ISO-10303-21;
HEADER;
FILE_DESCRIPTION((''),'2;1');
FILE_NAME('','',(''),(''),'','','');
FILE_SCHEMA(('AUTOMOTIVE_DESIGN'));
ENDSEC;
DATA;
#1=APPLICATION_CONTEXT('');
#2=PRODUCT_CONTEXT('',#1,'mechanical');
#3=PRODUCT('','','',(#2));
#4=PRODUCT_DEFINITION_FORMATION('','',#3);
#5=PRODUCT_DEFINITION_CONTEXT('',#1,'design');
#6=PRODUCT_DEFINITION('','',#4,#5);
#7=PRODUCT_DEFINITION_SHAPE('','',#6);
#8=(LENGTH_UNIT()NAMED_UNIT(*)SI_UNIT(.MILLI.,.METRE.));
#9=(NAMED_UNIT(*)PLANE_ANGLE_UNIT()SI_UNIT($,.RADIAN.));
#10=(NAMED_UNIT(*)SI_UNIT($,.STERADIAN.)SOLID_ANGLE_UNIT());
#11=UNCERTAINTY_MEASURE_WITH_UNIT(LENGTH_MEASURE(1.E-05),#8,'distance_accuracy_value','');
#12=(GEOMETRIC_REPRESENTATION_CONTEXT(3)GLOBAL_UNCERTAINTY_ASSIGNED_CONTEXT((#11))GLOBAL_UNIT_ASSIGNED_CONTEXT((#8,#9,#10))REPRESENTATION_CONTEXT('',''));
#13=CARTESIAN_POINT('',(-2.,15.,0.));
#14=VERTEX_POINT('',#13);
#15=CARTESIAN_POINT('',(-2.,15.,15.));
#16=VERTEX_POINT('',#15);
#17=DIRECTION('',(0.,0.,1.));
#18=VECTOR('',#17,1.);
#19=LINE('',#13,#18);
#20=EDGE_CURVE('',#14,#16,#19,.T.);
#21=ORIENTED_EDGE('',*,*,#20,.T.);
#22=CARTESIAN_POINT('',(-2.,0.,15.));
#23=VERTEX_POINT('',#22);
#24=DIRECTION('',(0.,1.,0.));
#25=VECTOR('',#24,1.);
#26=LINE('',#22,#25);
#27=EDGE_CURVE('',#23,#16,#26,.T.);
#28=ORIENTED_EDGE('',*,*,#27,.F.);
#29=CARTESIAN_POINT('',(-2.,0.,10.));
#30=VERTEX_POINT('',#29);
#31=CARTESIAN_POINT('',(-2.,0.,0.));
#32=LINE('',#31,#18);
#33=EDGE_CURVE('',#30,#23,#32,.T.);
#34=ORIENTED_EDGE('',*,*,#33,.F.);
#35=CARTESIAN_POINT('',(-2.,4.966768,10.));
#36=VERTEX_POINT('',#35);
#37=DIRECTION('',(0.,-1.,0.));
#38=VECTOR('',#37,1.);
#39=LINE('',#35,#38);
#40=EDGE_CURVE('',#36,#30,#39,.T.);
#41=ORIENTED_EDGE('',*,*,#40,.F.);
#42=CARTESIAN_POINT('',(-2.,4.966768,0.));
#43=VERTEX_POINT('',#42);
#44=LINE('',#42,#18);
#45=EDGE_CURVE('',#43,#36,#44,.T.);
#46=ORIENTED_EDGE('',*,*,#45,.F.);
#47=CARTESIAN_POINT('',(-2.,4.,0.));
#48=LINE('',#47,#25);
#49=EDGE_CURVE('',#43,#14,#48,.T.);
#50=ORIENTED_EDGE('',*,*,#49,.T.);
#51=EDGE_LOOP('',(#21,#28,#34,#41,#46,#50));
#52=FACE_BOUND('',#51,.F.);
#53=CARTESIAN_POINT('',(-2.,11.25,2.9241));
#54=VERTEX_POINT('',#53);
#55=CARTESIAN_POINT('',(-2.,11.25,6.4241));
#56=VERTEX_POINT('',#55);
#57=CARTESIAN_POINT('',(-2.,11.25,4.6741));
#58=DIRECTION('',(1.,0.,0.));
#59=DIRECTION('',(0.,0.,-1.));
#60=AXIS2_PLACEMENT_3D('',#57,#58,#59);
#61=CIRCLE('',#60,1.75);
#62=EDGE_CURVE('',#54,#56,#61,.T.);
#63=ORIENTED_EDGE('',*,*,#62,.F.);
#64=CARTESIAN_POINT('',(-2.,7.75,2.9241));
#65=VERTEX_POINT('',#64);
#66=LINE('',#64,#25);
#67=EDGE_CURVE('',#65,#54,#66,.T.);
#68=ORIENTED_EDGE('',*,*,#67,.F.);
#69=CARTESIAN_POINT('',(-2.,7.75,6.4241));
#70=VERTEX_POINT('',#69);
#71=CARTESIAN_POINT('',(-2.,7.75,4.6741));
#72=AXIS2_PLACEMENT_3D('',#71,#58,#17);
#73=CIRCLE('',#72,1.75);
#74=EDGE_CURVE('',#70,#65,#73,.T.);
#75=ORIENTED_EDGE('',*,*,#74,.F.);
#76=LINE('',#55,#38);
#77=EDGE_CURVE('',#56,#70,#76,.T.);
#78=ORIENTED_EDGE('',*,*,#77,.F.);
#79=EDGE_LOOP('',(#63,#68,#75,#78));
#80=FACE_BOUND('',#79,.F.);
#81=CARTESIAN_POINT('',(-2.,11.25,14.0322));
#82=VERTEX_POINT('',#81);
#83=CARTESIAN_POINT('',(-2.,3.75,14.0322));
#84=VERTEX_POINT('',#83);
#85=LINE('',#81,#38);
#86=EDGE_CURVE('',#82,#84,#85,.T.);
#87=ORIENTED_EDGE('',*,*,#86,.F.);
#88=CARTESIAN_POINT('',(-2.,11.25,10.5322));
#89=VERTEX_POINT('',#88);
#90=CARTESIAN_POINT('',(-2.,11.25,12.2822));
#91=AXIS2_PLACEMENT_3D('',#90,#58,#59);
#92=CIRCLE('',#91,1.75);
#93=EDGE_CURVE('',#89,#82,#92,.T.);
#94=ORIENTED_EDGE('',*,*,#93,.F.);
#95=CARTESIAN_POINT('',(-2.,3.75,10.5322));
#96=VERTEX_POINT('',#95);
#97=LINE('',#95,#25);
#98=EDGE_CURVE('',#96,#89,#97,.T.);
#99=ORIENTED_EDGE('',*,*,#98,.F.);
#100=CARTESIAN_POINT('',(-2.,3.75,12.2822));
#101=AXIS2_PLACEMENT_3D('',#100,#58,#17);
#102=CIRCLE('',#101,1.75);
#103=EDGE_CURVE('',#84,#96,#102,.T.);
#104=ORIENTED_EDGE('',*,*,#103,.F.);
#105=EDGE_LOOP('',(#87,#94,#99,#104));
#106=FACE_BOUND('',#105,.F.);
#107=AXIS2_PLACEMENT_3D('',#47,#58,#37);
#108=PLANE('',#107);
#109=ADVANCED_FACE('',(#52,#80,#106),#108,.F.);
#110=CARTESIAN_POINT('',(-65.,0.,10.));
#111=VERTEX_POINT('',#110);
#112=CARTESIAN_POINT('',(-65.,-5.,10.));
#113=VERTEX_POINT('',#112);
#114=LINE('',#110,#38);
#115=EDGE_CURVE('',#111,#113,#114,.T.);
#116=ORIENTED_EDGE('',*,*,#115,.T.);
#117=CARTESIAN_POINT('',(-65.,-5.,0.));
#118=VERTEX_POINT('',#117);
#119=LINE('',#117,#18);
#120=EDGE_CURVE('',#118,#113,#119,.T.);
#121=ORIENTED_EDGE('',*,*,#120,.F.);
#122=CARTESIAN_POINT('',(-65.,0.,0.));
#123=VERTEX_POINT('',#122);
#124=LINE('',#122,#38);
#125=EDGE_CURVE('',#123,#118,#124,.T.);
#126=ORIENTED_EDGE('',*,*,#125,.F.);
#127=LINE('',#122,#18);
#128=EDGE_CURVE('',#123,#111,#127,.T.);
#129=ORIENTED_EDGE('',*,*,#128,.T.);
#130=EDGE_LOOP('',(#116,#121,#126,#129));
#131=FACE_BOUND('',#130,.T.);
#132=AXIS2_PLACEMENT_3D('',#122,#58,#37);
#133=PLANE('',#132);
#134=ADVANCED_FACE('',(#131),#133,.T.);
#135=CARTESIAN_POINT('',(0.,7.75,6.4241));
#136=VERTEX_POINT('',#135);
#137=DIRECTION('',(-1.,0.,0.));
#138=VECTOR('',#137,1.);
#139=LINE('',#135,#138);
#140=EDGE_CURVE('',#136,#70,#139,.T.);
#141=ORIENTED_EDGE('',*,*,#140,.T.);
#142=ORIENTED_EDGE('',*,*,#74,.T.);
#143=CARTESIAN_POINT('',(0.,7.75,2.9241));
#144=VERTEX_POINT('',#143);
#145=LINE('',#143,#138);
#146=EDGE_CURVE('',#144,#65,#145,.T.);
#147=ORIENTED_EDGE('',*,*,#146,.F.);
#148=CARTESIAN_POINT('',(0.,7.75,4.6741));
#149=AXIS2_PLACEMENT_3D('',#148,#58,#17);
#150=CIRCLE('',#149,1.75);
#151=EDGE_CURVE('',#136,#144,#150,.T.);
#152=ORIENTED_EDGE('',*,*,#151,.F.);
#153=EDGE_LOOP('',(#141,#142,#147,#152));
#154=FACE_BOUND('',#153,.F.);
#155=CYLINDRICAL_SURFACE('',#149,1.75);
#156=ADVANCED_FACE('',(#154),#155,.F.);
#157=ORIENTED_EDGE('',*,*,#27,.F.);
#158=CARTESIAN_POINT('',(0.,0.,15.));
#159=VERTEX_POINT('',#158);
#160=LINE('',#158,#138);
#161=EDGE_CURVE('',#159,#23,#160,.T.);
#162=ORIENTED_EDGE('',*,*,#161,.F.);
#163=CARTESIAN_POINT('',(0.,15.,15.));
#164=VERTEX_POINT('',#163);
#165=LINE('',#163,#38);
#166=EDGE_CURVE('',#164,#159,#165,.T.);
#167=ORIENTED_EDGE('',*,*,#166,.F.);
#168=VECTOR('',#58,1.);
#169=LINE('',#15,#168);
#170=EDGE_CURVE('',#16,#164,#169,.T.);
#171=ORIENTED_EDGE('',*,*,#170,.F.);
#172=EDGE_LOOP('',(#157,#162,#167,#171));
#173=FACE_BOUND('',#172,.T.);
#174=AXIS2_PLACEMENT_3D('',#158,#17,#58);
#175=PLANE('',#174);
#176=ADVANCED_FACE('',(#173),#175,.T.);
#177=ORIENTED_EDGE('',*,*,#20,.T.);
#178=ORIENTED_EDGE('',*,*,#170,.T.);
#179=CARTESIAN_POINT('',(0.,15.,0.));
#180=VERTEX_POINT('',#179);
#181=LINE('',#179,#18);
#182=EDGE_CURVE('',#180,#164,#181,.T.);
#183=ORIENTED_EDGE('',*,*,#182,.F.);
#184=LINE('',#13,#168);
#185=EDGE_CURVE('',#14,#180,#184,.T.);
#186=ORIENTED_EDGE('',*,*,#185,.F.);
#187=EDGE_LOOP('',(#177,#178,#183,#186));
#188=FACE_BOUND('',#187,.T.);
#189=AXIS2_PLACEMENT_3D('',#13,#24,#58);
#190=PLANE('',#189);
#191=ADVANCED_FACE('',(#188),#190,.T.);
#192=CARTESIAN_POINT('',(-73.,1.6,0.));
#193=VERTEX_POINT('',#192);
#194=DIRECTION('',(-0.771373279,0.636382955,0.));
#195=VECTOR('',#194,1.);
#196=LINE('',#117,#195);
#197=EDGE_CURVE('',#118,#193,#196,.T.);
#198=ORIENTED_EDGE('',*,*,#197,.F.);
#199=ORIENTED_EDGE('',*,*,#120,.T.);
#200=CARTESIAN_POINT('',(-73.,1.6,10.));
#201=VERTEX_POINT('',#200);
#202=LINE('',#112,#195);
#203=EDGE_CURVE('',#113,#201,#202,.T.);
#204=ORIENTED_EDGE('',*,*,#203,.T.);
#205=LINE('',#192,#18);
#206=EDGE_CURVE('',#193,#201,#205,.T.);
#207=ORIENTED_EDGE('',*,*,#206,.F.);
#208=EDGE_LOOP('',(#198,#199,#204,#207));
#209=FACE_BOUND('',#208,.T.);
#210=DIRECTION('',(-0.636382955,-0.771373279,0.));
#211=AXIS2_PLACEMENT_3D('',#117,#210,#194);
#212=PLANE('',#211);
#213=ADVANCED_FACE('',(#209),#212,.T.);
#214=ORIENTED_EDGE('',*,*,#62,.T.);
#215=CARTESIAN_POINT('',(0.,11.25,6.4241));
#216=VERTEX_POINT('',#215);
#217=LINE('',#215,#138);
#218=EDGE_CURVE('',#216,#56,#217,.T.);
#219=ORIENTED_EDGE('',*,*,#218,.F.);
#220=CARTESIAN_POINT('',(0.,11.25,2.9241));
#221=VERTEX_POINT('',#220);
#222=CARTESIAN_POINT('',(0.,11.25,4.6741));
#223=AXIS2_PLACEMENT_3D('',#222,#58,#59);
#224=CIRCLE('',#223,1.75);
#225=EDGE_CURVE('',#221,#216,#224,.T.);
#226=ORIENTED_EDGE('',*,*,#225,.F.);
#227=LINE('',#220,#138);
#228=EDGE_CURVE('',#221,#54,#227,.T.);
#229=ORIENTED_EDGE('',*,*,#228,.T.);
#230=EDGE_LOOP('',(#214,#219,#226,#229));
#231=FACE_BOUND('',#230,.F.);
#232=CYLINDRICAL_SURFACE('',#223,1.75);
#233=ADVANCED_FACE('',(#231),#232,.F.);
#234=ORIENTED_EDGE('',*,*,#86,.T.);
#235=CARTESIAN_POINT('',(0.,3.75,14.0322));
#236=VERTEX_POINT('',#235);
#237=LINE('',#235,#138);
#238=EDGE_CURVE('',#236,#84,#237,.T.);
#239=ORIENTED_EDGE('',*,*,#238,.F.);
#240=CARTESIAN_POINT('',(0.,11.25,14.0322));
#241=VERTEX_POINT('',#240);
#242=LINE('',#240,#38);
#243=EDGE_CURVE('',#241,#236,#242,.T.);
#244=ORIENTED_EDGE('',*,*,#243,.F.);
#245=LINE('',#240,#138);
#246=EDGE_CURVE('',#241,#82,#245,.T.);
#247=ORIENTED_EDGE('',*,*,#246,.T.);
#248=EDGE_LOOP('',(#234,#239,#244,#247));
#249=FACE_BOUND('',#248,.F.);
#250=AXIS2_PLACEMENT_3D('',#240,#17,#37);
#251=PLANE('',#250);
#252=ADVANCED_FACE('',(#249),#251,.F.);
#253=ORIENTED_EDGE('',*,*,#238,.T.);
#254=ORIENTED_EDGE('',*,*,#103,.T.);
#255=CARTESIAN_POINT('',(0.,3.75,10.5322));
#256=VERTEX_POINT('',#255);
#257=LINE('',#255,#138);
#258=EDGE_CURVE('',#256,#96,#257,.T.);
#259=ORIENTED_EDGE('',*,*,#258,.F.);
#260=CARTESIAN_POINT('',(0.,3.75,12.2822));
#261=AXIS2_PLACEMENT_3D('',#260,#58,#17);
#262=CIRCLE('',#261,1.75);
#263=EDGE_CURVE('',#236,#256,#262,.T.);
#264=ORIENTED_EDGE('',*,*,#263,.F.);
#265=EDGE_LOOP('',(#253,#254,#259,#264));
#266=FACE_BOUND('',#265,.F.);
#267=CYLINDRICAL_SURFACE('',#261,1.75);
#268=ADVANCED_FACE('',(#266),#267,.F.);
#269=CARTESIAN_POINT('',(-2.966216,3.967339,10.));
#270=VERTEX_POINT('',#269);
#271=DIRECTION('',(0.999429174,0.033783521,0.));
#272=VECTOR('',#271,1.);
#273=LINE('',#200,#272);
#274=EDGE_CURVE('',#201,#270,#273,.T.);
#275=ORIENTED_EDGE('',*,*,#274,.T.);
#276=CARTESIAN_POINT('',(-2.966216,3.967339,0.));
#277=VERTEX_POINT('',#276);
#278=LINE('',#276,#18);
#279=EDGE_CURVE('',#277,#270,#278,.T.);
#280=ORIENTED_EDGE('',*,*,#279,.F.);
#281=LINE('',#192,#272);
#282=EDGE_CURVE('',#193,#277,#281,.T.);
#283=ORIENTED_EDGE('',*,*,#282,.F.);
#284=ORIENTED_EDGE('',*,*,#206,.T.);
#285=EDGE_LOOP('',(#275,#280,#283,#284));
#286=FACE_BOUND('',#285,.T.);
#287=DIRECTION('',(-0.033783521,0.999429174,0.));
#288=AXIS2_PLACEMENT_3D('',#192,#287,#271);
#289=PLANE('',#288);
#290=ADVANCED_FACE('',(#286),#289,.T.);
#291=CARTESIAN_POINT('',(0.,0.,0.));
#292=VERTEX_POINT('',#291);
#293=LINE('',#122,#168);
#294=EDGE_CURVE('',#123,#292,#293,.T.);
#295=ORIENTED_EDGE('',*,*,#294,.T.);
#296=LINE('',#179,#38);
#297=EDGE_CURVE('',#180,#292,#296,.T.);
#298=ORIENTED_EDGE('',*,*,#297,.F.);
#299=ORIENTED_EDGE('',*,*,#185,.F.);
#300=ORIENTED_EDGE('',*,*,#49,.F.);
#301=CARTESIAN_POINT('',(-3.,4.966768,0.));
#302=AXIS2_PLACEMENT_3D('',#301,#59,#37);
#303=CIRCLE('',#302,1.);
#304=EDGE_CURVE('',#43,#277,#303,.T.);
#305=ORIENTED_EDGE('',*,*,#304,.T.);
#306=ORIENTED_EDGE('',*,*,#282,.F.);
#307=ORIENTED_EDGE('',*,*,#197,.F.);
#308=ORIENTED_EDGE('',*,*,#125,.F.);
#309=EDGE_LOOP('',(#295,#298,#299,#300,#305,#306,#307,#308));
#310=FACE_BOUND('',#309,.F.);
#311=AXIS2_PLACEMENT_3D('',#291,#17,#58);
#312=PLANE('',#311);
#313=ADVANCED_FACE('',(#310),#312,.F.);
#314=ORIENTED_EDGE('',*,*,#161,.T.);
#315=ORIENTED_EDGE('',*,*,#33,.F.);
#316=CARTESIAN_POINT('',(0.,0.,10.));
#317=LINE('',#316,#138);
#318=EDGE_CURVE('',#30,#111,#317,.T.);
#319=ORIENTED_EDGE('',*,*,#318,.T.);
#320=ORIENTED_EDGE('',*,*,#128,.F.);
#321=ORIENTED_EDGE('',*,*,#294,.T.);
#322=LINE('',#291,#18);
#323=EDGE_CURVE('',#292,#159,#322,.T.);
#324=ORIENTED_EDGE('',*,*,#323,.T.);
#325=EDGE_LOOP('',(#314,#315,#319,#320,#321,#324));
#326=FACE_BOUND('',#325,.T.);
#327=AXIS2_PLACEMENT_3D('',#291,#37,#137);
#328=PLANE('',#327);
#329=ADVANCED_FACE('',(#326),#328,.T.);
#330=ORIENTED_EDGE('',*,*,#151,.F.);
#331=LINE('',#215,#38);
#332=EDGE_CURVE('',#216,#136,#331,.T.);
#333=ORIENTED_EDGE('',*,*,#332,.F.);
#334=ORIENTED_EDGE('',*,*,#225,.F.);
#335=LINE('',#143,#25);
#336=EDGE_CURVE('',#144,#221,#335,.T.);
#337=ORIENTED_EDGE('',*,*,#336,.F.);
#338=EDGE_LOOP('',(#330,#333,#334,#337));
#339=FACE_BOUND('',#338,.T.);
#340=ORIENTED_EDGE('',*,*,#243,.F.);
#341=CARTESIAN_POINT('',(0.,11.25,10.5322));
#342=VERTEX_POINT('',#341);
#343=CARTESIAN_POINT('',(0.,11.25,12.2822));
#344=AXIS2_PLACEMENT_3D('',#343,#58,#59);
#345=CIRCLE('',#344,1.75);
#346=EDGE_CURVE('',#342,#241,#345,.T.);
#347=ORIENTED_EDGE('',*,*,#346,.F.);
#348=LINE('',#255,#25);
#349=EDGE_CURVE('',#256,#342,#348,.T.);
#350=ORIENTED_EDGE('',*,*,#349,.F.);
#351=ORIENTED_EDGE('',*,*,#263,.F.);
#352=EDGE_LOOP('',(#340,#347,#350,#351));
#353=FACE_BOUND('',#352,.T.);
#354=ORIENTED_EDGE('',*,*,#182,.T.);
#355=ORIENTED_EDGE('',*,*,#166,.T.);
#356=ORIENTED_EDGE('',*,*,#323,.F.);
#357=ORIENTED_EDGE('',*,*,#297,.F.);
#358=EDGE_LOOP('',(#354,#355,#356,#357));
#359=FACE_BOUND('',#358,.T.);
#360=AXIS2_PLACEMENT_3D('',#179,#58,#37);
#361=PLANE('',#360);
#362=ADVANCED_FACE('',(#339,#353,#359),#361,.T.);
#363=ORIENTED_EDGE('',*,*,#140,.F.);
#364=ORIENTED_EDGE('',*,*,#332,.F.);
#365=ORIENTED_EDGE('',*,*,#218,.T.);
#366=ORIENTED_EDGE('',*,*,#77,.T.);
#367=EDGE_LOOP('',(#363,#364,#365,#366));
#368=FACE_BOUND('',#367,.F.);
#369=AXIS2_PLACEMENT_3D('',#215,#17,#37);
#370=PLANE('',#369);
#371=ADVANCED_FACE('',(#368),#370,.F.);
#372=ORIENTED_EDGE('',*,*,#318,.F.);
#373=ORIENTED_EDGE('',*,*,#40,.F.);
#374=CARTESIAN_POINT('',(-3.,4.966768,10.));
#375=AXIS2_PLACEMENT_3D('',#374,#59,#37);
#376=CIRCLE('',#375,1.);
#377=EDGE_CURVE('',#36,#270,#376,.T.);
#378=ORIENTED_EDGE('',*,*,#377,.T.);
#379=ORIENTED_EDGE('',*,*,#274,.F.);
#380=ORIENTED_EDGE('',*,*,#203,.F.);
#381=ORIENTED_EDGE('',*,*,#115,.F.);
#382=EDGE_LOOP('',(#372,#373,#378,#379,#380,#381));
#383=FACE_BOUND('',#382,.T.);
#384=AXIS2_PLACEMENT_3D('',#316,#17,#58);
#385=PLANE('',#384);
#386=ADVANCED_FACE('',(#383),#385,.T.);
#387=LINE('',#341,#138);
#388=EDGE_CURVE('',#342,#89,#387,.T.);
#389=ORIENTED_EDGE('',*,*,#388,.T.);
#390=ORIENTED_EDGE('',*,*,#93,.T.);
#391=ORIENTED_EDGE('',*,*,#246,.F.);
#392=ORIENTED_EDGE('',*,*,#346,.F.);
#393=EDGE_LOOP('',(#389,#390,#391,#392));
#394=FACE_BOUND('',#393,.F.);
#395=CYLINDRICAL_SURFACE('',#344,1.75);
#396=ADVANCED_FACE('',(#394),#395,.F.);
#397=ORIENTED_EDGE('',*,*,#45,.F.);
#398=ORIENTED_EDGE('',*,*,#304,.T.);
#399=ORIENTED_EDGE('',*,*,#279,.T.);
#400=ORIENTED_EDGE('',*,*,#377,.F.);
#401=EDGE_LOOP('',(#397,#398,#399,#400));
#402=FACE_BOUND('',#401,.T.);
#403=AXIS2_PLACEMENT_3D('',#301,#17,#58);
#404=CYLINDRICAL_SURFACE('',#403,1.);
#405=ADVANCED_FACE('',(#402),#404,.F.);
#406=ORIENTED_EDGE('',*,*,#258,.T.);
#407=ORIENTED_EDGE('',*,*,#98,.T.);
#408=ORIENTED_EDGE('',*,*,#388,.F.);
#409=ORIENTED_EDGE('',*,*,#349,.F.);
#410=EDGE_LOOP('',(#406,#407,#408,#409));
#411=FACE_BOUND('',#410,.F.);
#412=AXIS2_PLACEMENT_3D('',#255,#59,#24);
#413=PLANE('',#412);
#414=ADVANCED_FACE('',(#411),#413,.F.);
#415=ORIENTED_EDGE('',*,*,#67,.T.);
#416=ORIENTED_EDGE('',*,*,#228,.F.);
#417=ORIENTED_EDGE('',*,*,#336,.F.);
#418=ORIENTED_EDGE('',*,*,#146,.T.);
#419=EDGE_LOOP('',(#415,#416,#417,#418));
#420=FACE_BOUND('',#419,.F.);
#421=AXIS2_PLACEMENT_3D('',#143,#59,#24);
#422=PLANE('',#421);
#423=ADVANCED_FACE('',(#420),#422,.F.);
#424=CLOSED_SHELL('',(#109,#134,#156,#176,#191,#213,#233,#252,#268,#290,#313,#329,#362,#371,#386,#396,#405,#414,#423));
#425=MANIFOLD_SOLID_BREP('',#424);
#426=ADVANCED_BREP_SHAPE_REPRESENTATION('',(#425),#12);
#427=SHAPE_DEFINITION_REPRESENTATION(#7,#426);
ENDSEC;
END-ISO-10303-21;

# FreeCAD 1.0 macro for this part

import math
import FreeCAD as App
import Part
import Sketcher

V = App.Vector
Q = App.Units.Quantity


def edges_at(feature, points):
    """Names of the edges that pass closest to the given points."""
    edges = feature.Shape.Edges
    near = lambda p: min(range(len(edges)), key=lambda i: edges[i].distToShape(Part.Vertex(*p))[0])
    return sorted({f"Edge{near(p) + 1}" for p in points})

doc = App.newDocument("Part")
params = doc.addObject("Spreadsheet::Sheet", "Params")
for row, (alias, value) in enumerate([
    ("sketch1_width", "2 mm"),
    ("sketch1_height", "15 mm"),
    ("pad1_length", "15 mm"),
    ("sketch2_height", "4 mm"),
    ("sketch2_height2", "5 mm"),
    ("pad2_length", "10 mm"),
    ("sketch3_radius", "1.75 mm"),
    ("sketch3_width", "3.5 mm"),
    ("sketch3_width2", "7.5 mm"),
    ("pocket1_length", "2 mm"),
    ("fillet_radius", "1 mm"),
], start=1):
    params.set(f"A{row}", alias)
    params.set(f"B{row}", "=" + value)
    params.setAlias(f"B{row}", alias)

body = doc.addObject("PartDesign::Body", "Body")

sketch1 = body.newObject("Sketcher::SketchObject", "Sketch")
sketch1.AttachmentSupport = (doc.getObject("XY_Plane"), [""])
sketch1.MapMode = "FlatFace"
sketch1.addGeometry(Part.LineSegment(V(-2, 0, 0), V(0, 0, 0)), False)
sketch1.addGeometry(Part.LineSegment(V(0, 0, 0), V(0, 15, 0)), False)
sketch1.addGeometry(Part.LineSegment(V(0, 15, 0), V(-2, 15, 0)), False)
sketch1.addGeometry(Part.LineSegment(V(-2, 15, 0), V(-2, 0, 0)), False)
sketch1.addConstraint(Sketcher.Constraint("Coincident", 0, 2, 1, 1))
sketch1.addConstraint(Sketcher.Constraint("Coincident", 1, 2, 2, 1))
sketch1.addConstraint(Sketcher.Constraint("Coincident", 2, 2, 3, 1))
sketch1.addConstraint(Sketcher.Constraint("Coincident", 3, 2, 0, 1))
sketch1.addConstraint(Sketcher.Constraint("Horizontal", 0))
sketch1.addConstraint(Sketcher.Constraint("Vertical", 1))
sketch1.addConstraint(Sketcher.Constraint("Horizontal", 2))
sketch1.addConstraint(Sketcher.Constraint("Vertical", 3))
sketch1.addConstraint(Sketcher.Constraint("Coincident", 0, 2, -1, 1))
sketch1.addConstraint(Sketcher.Constraint("DistanceX", 0, 1, 0, 2, Q("2 mm")))
sketch1.addConstraint(Sketcher.Constraint("DistanceY", 1, 1, 1, 2, Q("15 mm")))
sketch1.setExpression("Constraints[9]", "Params.sketch1_width")
sketch1.setExpression("Constraints[10]", "Params.sketch1_height")
pad1 = body.newObject("PartDesign::Pad", "Pad")
pad1.Profile = sketch1
pad1.setExpression("Length", "Params.pad1_length")

sketch2 = body.newObject("Sketcher::SketchObject", "Sketch001")
sketch2.AttachmentSupport = (doc.getObject("XY_Plane"), [""])
sketch2.MapMode = "FlatFace"
sketch2.addGeometry(Part.LineSegment(V(-65, 0, 0), V(-2, 0, 0)), False)
sketch2.addGeometry(Part.LineSegment(V(-2, 0, 0), V(-2, 4, 0)), False)
sketch2.addGeometry(Part.LineSegment(V(-2, 4, 0), V(-73, 1.6, 0)), False)
sketch2.addGeometry(Part.LineSegment(V(-73, 1.6, 0), V(-65, -5, 0)), False)
sketch2.addGeometry(Part.LineSegment(V(-65, -5, 0), V(-65, 0, 0)), False)
sketch2.addConstraint(Sketcher.Constraint("Coincident", 0, 2, 1, 1))
sketch2.addConstraint(Sketcher.Constraint("Coincident", 1, 2, 2, 1))
sketch2.addConstraint(Sketcher.Constraint("Coincident", 2, 2, 3, 1))
sketch2.addConstraint(Sketcher.Constraint("Coincident", 3, 2, 4, 1))
sketch2.addConstraint(Sketcher.Constraint("Coincident", 4, 2, 0, 1))
sketch2.addConstraint(Sketcher.Constraint("Horizontal", 0))
sketch2.addConstraint(Sketcher.Constraint("Vertical", 1))
sketch2.addConstraint(Sketcher.Constraint("Vertical", 4))
sketch2.addConstraint(Sketcher.Constraint("PointOnObject", 0, 2, -1))
sketch2.addConstraint(Sketcher.Constraint("DistanceY", 1, 1, 1, 2, Q("4 mm")))
sketch2.addConstraint(Sketcher.Constraint("DistanceY", 4, 1, 4, 2, Q("5 mm")))
sketch2.addConstraint(Sketcher.Constraint("DistanceX", 0, 2, -1, 1, Q("2 mm")))
sketch2.addConstraint(Sketcher.Constraint("DistanceX", 3, 2, -1, 1, Q("65 mm")))
sketch2.addConstraint(Sketcher.Constraint("DistanceX", 2, 2, 3, 2, Q("8 mm")))
sketch2.addConstraint(Sketcher.Constraint("DistanceY", -1, 1, 2, 2, Q("1.6 mm")))
sketch2.setExpression("Constraints[9]", "Params.sketch2_height")
sketch2.setExpression("Constraints[10]", "Params.sketch2_height2")
pad2 = body.newObject("PartDesign::Pad", "Pad001")
pad2.Profile = sketch2
pad2.setExpression("Length", "Params.pad2_length")

sketch3 = body.newObject("Sketcher::SketchObject", "Sketch002")
sketch3.AttachmentSupport = (doc.getObject("YZ_Plane"), [""])
sketch3.MapMode = "FlatFace"
sketch3.addGeometry(Part.ArcOfCircle(Part.Circle(V(3.8, 12.3, 0), V(0, 0, 1), 1.8), math.radians(90), math.radians(270)), False)
sketch3.addGeometry(Part.LineSegment(V(3.8, 10.5, 0), V(11.2, 10.5, 0)), False)
sketch3.addGeometry(Part.ArcOfCircle(Part.Circle(V(11.2, 12.3, 0), V(0, 0, 1), 1.8), math.radians(-90), math.radians(90)), False)
sketch3.addGeometry(Part.LineSegment(V(11.2, 14, 0), V(3.8, 14, 0)), False)
sketch3.addGeometry(Part.ArcOfCircle(Part.Circle(V(7.8, 4.7, 0), V(0, 0, 1), 1.8), math.radians(90), math.radians(270)), False)
sketch3.addGeometry(Part.LineSegment(V(7.8, 2.9, 0), V(11.2, 2.9, 0)), False)
sketch3.addGeometry(Part.ArcOfCircle(Part.Circle(V(11.2, 4.7, 0), V(0, 0, 1), 1.8), math.radians(-90), math.radians(90)), False)
sketch3.addGeometry(Part.LineSegment(V(11.2, 6.4, 0), V(7.8, 6.4, 0)), False)
sketch3.addConstraint(Sketcher.Constraint("Tangent", 0, 2, 1, 1))
sketch3.addConstraint(Sketcher.Constraint("Tangent", 1, 2, 2, 1))
sketch3.addConstraint(Sketcher.Constraint("Tangent", 2, 2, 3, 1))
sketch3.addConstraint(Sketcher.Constraint("Tangent", 3, 2, 0, 1))
sketch3.addConstraint(Sketcher.Constraint("Tangent", 4, 2, 5, 1))
sketch3.addConstraint(Sketcher.Constraint("Tangent", 5, 2, 6, 1))
sketch3.addConstraint(Sketcher.Constraint("Tangent", 6, 2, 7, 1))
sketch3.addConstraint(Sketcher.Constraint("Tangent", 7, 2, 4, 1))
sketch3.addConstraint(Sketcher.Constraint("Horizontal", 1))
sketch3.addConstraint(Sketcher.Constraint("Horizontal", 3))
sketch3.addConstraint(Sketcher.Constraint("Horizontal", 5))
sketch3.addConstraint(Sketcher.Constraint("Horizontal", 7))
sketch3.addConstraint(Sketcher.Constraint("Equal", 2, 4))
sketch3.addConstraint(Sketcher.Constraint("Vertical", 2, 3, 6, 3))
sketch3.addConstraint(Sketcher.Constraint("Radius", 0, Q("1.75 mm")))
sketch3.addConstraint(Sketcher.Constraint("DistanceX", 5, 1, 5, 2, Q("3.5 mm")))
sketch3.addConstraint(Sketcher.Constraint("DistanceX", 1, 1, 1, 2, Q("7.5 mm")))
sketch3.addConstraint(Sketcher.Constraint("DistanceX", -1, 1, 0, 3, Q("3.75 mm")))
sketch3.addConstraint(Sketcher.Constraint("DistanceY", -1, 1, 4, 3, Q("4.674 mm")))
sketch3.addConstraint(Sketcher.Constraint("DistanceY", 4, 3, 2, 3, Q("7.608 mm")))
sketch3.setExpression("Constraints[14]", "Params.sketch3_radius")
sketch3.setExpression("Constraints[15]", "Params.sketch3_width")
sketch3.setExpression("Constraints[16]", "Params.sketch3_width2")
pocket1 = body.newObject("PartDesign::Pocket", "Pocket")
pocket1.Profile = sketch3
pocket1.setExpression("Length", "Params.pocket1_length")
doc.recompute()

fillet = body.newObject("PartDesign::Fillet", "Fillet")
fillet.Base = (pocket1, edges_at(pocket1, [(-2, 4, 5)]))
fillet.setExpression("Radius", "Params.fillet_radius")

doc.recompute()
